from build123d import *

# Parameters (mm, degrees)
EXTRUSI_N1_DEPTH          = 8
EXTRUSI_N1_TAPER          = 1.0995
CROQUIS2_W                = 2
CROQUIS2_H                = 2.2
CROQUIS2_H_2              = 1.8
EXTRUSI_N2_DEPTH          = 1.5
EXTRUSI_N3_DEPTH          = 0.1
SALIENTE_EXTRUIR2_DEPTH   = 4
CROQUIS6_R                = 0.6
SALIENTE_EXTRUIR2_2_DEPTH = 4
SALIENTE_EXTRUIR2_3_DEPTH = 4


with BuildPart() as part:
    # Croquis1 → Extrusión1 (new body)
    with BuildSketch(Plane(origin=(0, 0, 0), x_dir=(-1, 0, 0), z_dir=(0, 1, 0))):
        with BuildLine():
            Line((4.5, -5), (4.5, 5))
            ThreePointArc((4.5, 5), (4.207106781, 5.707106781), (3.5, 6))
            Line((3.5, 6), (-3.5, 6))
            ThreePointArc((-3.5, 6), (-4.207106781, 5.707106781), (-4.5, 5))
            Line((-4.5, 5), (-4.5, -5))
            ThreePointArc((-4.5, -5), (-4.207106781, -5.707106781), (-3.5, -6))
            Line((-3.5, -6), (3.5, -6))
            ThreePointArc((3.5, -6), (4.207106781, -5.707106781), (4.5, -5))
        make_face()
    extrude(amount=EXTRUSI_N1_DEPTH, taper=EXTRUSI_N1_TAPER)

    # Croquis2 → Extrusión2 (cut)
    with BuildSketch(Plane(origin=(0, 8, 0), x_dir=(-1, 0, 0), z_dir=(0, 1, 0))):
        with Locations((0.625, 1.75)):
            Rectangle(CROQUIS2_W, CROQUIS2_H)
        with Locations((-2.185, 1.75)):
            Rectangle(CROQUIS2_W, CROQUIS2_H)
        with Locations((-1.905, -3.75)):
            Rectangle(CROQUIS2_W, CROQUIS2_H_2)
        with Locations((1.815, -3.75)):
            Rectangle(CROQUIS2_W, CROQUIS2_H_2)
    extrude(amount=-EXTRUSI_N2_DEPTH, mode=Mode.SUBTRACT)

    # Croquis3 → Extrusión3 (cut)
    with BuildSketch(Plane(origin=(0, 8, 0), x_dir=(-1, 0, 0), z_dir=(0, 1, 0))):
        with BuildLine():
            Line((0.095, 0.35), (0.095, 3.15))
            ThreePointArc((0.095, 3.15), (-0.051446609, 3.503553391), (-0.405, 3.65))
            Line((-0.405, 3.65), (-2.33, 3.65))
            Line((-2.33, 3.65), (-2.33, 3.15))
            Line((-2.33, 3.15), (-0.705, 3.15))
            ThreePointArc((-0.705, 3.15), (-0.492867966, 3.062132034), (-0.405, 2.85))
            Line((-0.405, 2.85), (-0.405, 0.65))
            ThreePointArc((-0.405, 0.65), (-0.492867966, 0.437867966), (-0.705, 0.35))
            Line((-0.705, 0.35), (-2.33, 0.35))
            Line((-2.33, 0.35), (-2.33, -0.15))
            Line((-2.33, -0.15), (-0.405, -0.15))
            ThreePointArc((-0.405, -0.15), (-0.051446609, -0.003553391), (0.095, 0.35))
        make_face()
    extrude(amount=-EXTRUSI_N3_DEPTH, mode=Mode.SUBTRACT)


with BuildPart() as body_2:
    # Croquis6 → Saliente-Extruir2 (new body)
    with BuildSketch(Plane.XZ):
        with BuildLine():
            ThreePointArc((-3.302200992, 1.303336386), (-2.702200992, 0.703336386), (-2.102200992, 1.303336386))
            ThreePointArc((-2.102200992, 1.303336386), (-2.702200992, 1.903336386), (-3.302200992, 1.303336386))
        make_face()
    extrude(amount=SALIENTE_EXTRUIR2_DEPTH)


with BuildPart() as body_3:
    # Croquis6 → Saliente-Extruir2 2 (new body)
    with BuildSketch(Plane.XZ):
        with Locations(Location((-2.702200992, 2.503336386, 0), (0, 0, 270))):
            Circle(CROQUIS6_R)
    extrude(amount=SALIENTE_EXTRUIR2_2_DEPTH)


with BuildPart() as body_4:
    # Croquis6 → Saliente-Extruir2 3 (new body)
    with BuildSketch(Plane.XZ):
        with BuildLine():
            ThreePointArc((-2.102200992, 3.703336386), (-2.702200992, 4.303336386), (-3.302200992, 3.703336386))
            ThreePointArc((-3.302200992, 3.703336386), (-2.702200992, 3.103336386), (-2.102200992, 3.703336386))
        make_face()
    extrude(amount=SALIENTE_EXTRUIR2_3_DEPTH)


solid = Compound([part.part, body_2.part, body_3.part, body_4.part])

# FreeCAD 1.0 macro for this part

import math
import FreeCAD as App
import Part
import Sketcher

doc = App.newDocument("Part")
body = doc.addObject("PartDesign::Body", "Body")

# Sketch on XZ plane
sketch1 = body.newObject("Sketcher::SketchObject", "Sketch")
sketch1.AttachmentSupport = (doc.getObject("XZ_Plane"), [""])
sketch1.MapMode = "FlatFace"
sketch1.addGeometry(Part.LineSegment(App.Vector(-4.5, -5, 0), App.Vector(-4.5, 5, 0)), False)
sketch1.addGeometry(Part.ArcOfCircle(Part.Circle(App.Vector(-3.5, 5, 0), App.Vector(0, 0, 1), 1), math.radians(90), math.radians(180)), False)
sketch1.addGeometry(Part.LineSegment(App.Vector(-3.5, 6, 0), App.Vector(3.5, 6, 0)), False)
sketch1.addGeometry(Part.ArcOfCircle(Part.Circle(App.Vector(3.5, 5, 0), App.Vector(0, 0, 1), 1), math.radians(0), math.radians(90)), False)
sketch1.addGeometry(Part.LineSegment(App.Vector(4.5, 5, 0), App.Vector(4.5, -5, 0)), False)
sketch1.addGeometry(Part.ArcOfCircle(Part.Circle(App.Vector(3.5, -5, 0), App.Vector(0, 0, 1), 1), math.radians(-90), math.radians(0)), False)
sketch1.addGeometry(Part.LineSegment(App.Vector(3.5, -6, 0), App.Vector(-3.5, -6, 0)), False)
sketch1.addGeometry(Part.ArcOfCircle(Part.Circle(App.Vector(-3.5, -5, 0), App.Vector(0, 0, 1), 1), math.radians(-180), math.radians(-90)), False)
sketch1.addConstraint(Sketcher.Constraint("Tangent", 0, 2, 1, 2))
sketch1.addConstraint(Sketcher.Constraint("Tangent", 1, 1, 2, 1))
sketch1.addConstraint(Sketcher.Constraint("Tangent", 2, 2, 3, 2))
sketch1.addConstraint(Sketcher.Constraint("Tangent", 3, 1, 4, 1))
sketch1.addConstraint(Sketcher.Constraint("Tangent", 4, 2, 5, 2))
sketch1.addConstraint(Sketcher.Constraint("Tangent", 5, 1, 6, 1))
sketch1.addConstraint(Sketcher.Constraint("Tangent", 6, 2, 7, 2))
sketch1.addConstraint(Sketcher.Constraint("Tangent", 7, 1, 0, 1))
sketch1.addConstraint(Sketcher.Constraint("Vertical", 0))
sketch1.addConstraint(Sketcher.Constraint("Horizontal", 2))
sketch1.addConstraint(Sketcher.Constraint("Vertical", 4))
sketch1.addConstraint(Sketcher.Constraint("Horizontal", 6))
sketch1.addConstraint(Sketcher.Constraint("Equal", 1, 3))
sketch1.addConstraint(Sketcher.Constraint("Equal", 3, 5))
sketch1.addConstraint(Sketcher.Constraint("Equal", 5, 7))
sketch1.addConstraint(Sketcher.Constraint("Symmetric", 1, 3, 5, 3, -1, 1))
sketch1.addConstraint(Sketcher.Constraint("Radius", 1, 1.0))
sketch1.addConstraint(Sketcher.Constraint("DistanceX", 2, 1, 2, 2, 7.0))
sketch1.addConstraint(Sketcher.Constraint("DistanceY", 0, 1, 0, 2, 10.0))
pad1 = body.newObject("PartDesign::Pad", "Pad")
pad1.Profile = sketch1
pad1.Length = 8
pad1.Reversed = True
pad1.TaperAngle = -1.0995

# Sketch on XZ plane
sketch2 = body.newObject("Sketcher::SketchObject", "Sketch001")
sketch2.AttachmentSupport = (doc.getObject("XZ_Plane"), [""])
sketch2.MapMode = "FlatFace"
sketch2.AttachmentOffset = App.Placement(App.Vector(0, 0, -8), App.Rotation())
sketch2.addGeometry(Part.LineSegment(App.Vector(0.375, 2.85, 0), App.Vector(0.375, 0.65, 0)), False)
sketch2.addGeometry(Part.LineSegment(App.Vector(0.375, 0.65, 0), App.Vector(-1.625, 0.65, 0)), False)
sketch2.addGeometry(Part.LineSegment(App.Vector(-1.625, 0.65, 0), App.Vector(-1.625, 2.85, 0)), False)
sketch2.addGeometry(Part.LineSegment(App.Vector(-1.625, 2.85, 0), App.Vector(0.375, 2.85, 0)), False)
sketch2.addGeometry(Part.LineSegment(App.Vector(3.185, 2.85, 0), App.Vector(3.185, 0.65, 0)), False)
sketch2.addGeometry(Part.LineSegment(App.Vector(3.185, 0.65, 0), App.Vector(1.185, 0.65, 0)), False)
sketch2.addGeometry(Part.LineSegment(App.Vector(1.185, 0.65, 0), App.Vector(1.185, 2.85, 0)), False)
sketch2.addGeometry(Part.LineSegment(App.Vector(1.185, 2.85, 0), App.Vector(3.185, 2.85, 0)), False)
sketch2.addGeometry(Part.LineSegment(App.Vector(2.905, -2.85, 0), App.Vector(2.905, -4.65, 0)), False)
sketch2.addGeometry(Part.LineSegment(App.Vector(2.905, -4.65, 0), App.Vector(0.905, -4.65, 0)), False)
sketch2.addGeometry(Part.LineSegment(App.Vector(0.905, -4.65, 0), App.Vector(0.905, -2.85, 0)), False)
sketch2.addGeometry(Part.LineSegment(App.Vector(0.905, -2.85, 0), App.Vector(2.905, -2.85, 0)), False)
sketch2.addGeometry(Part.LineSegment(App.Vector(-0.815, -2.85, 0), App.Vector(-0.815, -4.65, 0)), False)
sketch2.addGeometry(Part.LineSegment(App.Vector(-0.815, -4.65, 0), App.Vector(-2.815, -4.65, 0)), False)
sketch2.addGeometry(Part.LineSegment(App.Vector(-2.815, -4.65, 0), App.Vector(-2.815, -2.85, 0)), False)
sketch2.addGeometry(Part.LineSegment(App.Vector(-2.815, -2.85, 0), App.Vector(-0.815, -2.85, 0)), False)
sketch2.addConstraint(Sketcher.Constraint("Coincident", 0, 2, 1, 1))
sketch2.addConstraint(Sketcher.Constraint("Coincident", 1, 2, 2, 1))
sketch2.addConstraint(Sketcher.Constraint("Coincident", 2, 2, 3, 1))
sketch2.addConstraint(Sketcher.Constraint("Coincident", 3, 2, 0, 1))
sketch2.addConstraint(Sketcher.Constraint("Coincident", 4, 2, 5, 1))
sketch2.addConstraint(Sketcher.Constraint("Coincident", 5, 2, 6, 1))
sketch2.addConstraint(Sketcher.Constraint("Coincident", 6, 2, 7, 1))
sketch2.addConstraint(Sketcher.Constraint("Coincident", 7, 2, 4, 1))
sketch2.addConstraint(Sketcher.Constraint("Coincident", 8, 2, 9, 1))
sketch2.addConstraint(Sketcher.Constraint("Coincident", 9, 2, 10, 1))
sketch2.addConstraint(Sketcher.Constraint("Coincident", 10, 2, 11, 1))
sketch2.addConstraint(Sketcher.Constraint("Coincident", 11, 2, 8, 1))
sketch2.addConstraint(Sketcher.Constraint("Coincident", 12, 2, 13, 1))
sketch2.addConstraint(Sketcher.Constraint("Coincident", 13, 2, 14, 1))
sketch2.addConstraint(Sketcher.Constraint("Coincident", 14, 2, 15, 1))
sketch2.addConstraint(Sketcher.Constraint("Coincident", 15, 2, 12, 1))
sketch2.addConstraint(Sketcher.Constraint("Vertical", 0))
sketch2.addConstraint(Sketcher.Constraint("Horizontal", 1))
sketch2.addConstraint(Sketcher.Constraint("Vertical", 2))
sketch2.addConstraint(Sketcher.Constraint("Horizontal", 3))
sketch2.addConstraint(Sketcher.Constraint("Vertical", 4))
sketch2.addConstraint(Sketcher.Constraint("Horizontal", 5))
sketch2.addConstraint(Sketcher.Constraint("Vertical", 6))
sketch2.addConstraint(Sketcher.Constraint("Horizontal", 7))
sketch2.addConstraint(Sketcher.Constraint("Vertical", 8))
sketch2.addConstraint(Sketcher.Constraint("Horizontal", 9))
sketch2.addConstraint(Sketcher.Constraint("Vertical", 10))
sketch2.addConstraint(Sketcher.Constraint("Horizontal", 11))
sketch2.addConstraint(Sketcher.Constraint("Vertical", 12))
sketch2.addConstraint(Sketcher.Constraint("Horizontal", 13))
sketch2.addConstraint(Sketcher.Constraint("Vertical", 14))
sketch2.addConstraint(Sketcher.Constraint("Horizontal", 15))
sketch2.addConstraint(Sketcher.Constraint("Horizontal", 1, 2, 4, 2))
sketch2.addConstraint(Sketcher.Constraint("Horizontal", 3, 2, 6, 2))
sketch2.addConstraint(Sketcher.Constraint("Horizontal", 9, 2, 12, 2))
sketch2.addConstraint(Sketcher.Constraint("Horizontal", 11, 2, 14, 2))
sketch2.addConstraint(Sketcher.Constraint("Equal", 3, 5))
sketch2.addConstraint(Sketcher.Constraint("Equal", 7, 9))
sketch2.addConstraint(Sketcher.Constraint("Equal", 11, 13))
sketch2.addConstraint(Sketcher.Constraint("DistanceX", 1, 2, 1, 1, 2.0))
sketch2.addConstraint(Sketcher.Constraint("DistanceY", 0, 2, 0, 1, 2.2))
sketch2.addConstraint(Sketcher.Constraint("DistanceY", 8, 2, 8, 1, 1.8))
sketch2.addConstraint(Sketcher.Constraint("DistanceY", 8, 2, 4, 2, 5.3))
sketch2.addConstraint(Sketcher.Constraint("DistanceY", -1, 1, 0, 2, 0.65))
sketch2.addConstraint(Sketcher.Constraint("DistanceX", 0, 2, 4, 2, 2.81))
sketch2.addConstraint(Sketcher.Constraint("DistanceX", 8, 2, 4, 2, 0.28))
sketch2.addConstraint(Sketcher.Constraint("DistanceX", 12, 2, 9, 2, 1.72))
sketch2.addConstraint(Sketcher.Constraint("DistanceX", -1, 1, 0, 2, 0.375))
pocket1 = body.newObject("PartDesign::Pocket", "Pocket")
pocket1.Profile = sketch2
pocket1.Length = 1.5
pocket1.Reversed = True

# Sketch on XZ plane
sketch3 = body.newObject("Sketcher::SketchObject", "Sketch002")
sketch3.AttachmentSupport = (doc.getObject("XZ_Plane"), [""])
sketch3.MapMode = "FlatFace"
sketch3.AttachmentOffset = App.Placement(App.Vector(0, 0, -8), App.Rotation())
sketch3.addGeometry(Part.LineSegment(App.Vector(-0.095, 0.35, 0), App.Vector(-0.095, 3.15, 0)), False)
sketch3.addGeometry(Part.ArcOfCircle(Part.Circle(App.Vector(0.405, 3.15, 0), App.Vector(0, 0, 1), 0.5), math.radians(90), math.radians(180)), False)
sketch3.addGeometry(Part.LineSegment(App.Vector(0.405, 3.65, 0), App.Vector(2.33, 3.65, 0)), False)
sketch3.addGeometry(Part.LineSegment(App.Vector(2.33, 3.65, 0), App.Vector(2.33, 3.15, 0)), False)
sketch3.addGeometry(Part.LineSegment(App.Vector(2.33, 3.15, 0), App.Vector(0.705, 3.15, 0)), False)
sketch3.addGeometry(Part.ArcOfCircle(Part.Circle(App.Vector(0.705, 2.85, 0), App.Vector(0, 0, 1), 0.3), math.radians(90), math.radians(180)), False)
sketch3.addGeometry(Part.LineSegment(App.Vector(0.405, 2.85, 0), App.Vector(0.405, 0.65, 0)), False)
sketch3.addGeometry(Part.ArcOfCircle(Part.Circle(App.Vector(0.705, 0.65, 0), App.Vector(0, 0, 1), 0.3), math.radians(-180), math.radians(-90)), False)
sketch3.addGeometry(Part.LineSegment(App.Vector(0.705, 0.35, 0), App.Vector(2.33, 0.35, 0)), False)
sketch3.addGeometry(Part.LineSegment(App.Vector(2.33, 0.35, 0), App.Vector(2.33, -0.15, 0)), False)
sketch3.addGeometry(Part.LineSegment(App.Vector(2.33, -0.15, 0), App.Vector(0.405, -0.15, 0)), False)
sketch3.addGeometry(Part.ArcOfCircle(Part.Circle(App.Vector(0.405, 0.35, 0), App.Vector(0, 0, 1), 0.5), math.radians(180), math.radians(270)), False)
sketch3.addConstraint(Sketcher.Constraint("Tangent", 0, 2, 1, 2))
sketch3.addConstraint(Sketcher.Constraint("Tangent", 1, 1, 2, 1))
sketch3.addConstraint(Sketcher.Constraint("Coincident", 2, 2, 3, 1))
sketch3.addConstraint(Sketcher.Constraint("Coincident", 3, 2, 4, 1))
sketch3.addConstraint(Sketcher.Constraint("Tangent", 4, 2, 5, 1))
sketch3.addConstraint(Sketcher.Constraint("Tangent", 5, 2, 6, 1))
sketch3.addConstraint(Sketcher.Constraint("Tangent", 6, 2, 7, 1))
sketch3.addConstraint(Sketcher.Constraint("Tangent", 7, 2, 8, 1))
sketch3.addConstraint(Sketcher.Constraint("Coincident", 8, 2, 9, 1))
sketch3.addConstraint(Sketcher.Constraint("Coincident", 9, 2, 10, 1))
sketch3.addConstraint(Sketcher.Constraint("Tangent", 10, 2, 11, 2))
sketch3.addConstraint(Sketcher.Constraint("Tangent", 11, 1, 0, 1))
sketch3.addConstraint(Sketcher.Constraint("Vertical", 0))
sketch3.addConstraint(Sketcher.Constraint("Horizontal", 2))
sketch3.addConstraint(Sketcher.Constraint("Vertical", 3))
sketch3.addConstraint(Sketcher.Constraint("Horizontal", 4))
sketch3.addConstraint(Sketcher.Constraint("Vertical", 6))
sketch3.addConstraint(Sketcher.Constraint("Horizontal", 8))
sketch3.addConstraint(Sketcher.Constraint("Vertical", 9))
sketch3.addConstraint(Sketcher.Constraint("Horizontal", 10))
sketch3.addConstraint(Sketcher.Constraint("Equal", 5, 7))
sketch3.addConstraint(Sketcher.Constraint("Equal", 1, 11))
sketch3.addConstraint(Sketcher.Constraint("Horizontal", 0, 2, 3, 2))
sketch3.addConstraint(Sketcher.Constraint("Horizontal", 11, 3, 7, 2))
sketch3.addConstraint(Sketcher.Constraint("Vertical", 1, 1, 5, 2))
sketch3.addConstraint(Sketcher.Constraint("Vertical", 3, 2, 8, 2))
sketch3.addConstraint(Sketcher.Constraint("Radius", 1, 0.5))
sketch3.addConstraint(Sketcher.Constraint("Radius", 5, 0.3))
sketch3.addConstraint(Sketcher.Constraint("DistanceY", 0, 1, 0, 2, 2.8))
sketch3.addConstraint(Sketcher.Constraint("DistanceX", 2, 1, 2, 2, 1.925))
sketch3.addConstraint(Sketcher.Constraint("DistanceY", -1, 1, 1, 3, 3.15))
sketch3.addConstraint(Sketcher.Constraint("DistanceX", -1, 1, 2, 2, 2.33))
pocket2 = body.newObject("PartDesign::Pocket", "Pocket001")
pocket2.Profile = sketch3
pocket2.Length = 0.1
pocket2.Reversed = True
body2 = doc.addObject("PartDesign::Body", "Body001")

# Sketch on XZ plane
sketch4 = body2.newObject("Sketcher::SketchObject", "Sketch003")
sketch4.AttachmentSupport = (doc.getObject("XZ_Plane001"), [""])
sketch4.MapMode = "FlatFace"
sketch4.addGeometry(Part.Circle(App.Vector(-2.702201, 1.303336, 0), App.Vector(0, 0, 1), 0.6), False)
sketch4.addConstraint(Sketcher.Constraint("Diameter", 0, 1.2))
sketch4.addConstraint(Sketcher.Constraint("DistanceX", 0, 3, -1, 1, 2.702201))
sketch4.addConstraint(Sketcher.Constraint("DistanceY", -1, 1, 0, 3, 1.303336))
pad2 = body2.newObject("PartDesign::Pad", "Pad001")
pad2.Profile = sketch4
pad2.Length = 4
body3 = doc.addObject("PartDesign::Body", "Body002")

# Sketch on XZ plane
sketch5 = body3.newObject("Sketcher::SketchObject", "Sketch004")
sketch5.AttachmentSupport = (doc.getObject("XZ_Plane002"), [""])
sketch5.MapMode = "FlatFace"
sketch5.addGeometry(Part.Circle(App.Vector(-2.702201, 2.503336, 0), App.Vector(0, 0, 1), 0.6), False)
sketch5.addConstraint(Sketcher.Constraint("Diameter", 0, 1.2))
sketch5.addConstraint(Sketcher.Constraint("DistanceX", 0, 3, -1, 1, 2.702201))
sketch5.addConstraint(Sketcher.Constraint("DistanceY", -1, 1, 0, 3, 2.503336))
pad3 = body3.newObject("PartDesign::Pad", "Pad002")
pad3.Profile = sketch5
pad3.Length = 4
body4 = doc.addObject("PartDesign::Body", "Body003")

# Sketch on XZ plane
sketch6 = body4.newObject("Sketcher::SketchObject", "Sketch005")
sketch6.AttachmentSupport = (doc.getObject("XZ_Plane003"), [""])
sketch6.MapMode = "FlatFace"
sketch6.addGeometry(Part.Circle(App.Vector(-2.702201, 3.703336, 0), App.Vector(0, 0, 1), 0.6), False)
sketch6.addConstraint(Sketcher.Constraint("Diameter", 0, 1.2))
sketch6.addConstraint(Sketcher.Constraint("DistanceX", 0, 3, -1, 1, 2.702201))
sketch6.addConstraint(Sketcher.Constraint("DistanceY", -1, 1, 0, 3, 3.703336))
pad4 = body4.newObject("PartDesign::Pad", "Pad003")
pad4.Profile = sketch6
pad4.Length = 4

doc.recompute()
